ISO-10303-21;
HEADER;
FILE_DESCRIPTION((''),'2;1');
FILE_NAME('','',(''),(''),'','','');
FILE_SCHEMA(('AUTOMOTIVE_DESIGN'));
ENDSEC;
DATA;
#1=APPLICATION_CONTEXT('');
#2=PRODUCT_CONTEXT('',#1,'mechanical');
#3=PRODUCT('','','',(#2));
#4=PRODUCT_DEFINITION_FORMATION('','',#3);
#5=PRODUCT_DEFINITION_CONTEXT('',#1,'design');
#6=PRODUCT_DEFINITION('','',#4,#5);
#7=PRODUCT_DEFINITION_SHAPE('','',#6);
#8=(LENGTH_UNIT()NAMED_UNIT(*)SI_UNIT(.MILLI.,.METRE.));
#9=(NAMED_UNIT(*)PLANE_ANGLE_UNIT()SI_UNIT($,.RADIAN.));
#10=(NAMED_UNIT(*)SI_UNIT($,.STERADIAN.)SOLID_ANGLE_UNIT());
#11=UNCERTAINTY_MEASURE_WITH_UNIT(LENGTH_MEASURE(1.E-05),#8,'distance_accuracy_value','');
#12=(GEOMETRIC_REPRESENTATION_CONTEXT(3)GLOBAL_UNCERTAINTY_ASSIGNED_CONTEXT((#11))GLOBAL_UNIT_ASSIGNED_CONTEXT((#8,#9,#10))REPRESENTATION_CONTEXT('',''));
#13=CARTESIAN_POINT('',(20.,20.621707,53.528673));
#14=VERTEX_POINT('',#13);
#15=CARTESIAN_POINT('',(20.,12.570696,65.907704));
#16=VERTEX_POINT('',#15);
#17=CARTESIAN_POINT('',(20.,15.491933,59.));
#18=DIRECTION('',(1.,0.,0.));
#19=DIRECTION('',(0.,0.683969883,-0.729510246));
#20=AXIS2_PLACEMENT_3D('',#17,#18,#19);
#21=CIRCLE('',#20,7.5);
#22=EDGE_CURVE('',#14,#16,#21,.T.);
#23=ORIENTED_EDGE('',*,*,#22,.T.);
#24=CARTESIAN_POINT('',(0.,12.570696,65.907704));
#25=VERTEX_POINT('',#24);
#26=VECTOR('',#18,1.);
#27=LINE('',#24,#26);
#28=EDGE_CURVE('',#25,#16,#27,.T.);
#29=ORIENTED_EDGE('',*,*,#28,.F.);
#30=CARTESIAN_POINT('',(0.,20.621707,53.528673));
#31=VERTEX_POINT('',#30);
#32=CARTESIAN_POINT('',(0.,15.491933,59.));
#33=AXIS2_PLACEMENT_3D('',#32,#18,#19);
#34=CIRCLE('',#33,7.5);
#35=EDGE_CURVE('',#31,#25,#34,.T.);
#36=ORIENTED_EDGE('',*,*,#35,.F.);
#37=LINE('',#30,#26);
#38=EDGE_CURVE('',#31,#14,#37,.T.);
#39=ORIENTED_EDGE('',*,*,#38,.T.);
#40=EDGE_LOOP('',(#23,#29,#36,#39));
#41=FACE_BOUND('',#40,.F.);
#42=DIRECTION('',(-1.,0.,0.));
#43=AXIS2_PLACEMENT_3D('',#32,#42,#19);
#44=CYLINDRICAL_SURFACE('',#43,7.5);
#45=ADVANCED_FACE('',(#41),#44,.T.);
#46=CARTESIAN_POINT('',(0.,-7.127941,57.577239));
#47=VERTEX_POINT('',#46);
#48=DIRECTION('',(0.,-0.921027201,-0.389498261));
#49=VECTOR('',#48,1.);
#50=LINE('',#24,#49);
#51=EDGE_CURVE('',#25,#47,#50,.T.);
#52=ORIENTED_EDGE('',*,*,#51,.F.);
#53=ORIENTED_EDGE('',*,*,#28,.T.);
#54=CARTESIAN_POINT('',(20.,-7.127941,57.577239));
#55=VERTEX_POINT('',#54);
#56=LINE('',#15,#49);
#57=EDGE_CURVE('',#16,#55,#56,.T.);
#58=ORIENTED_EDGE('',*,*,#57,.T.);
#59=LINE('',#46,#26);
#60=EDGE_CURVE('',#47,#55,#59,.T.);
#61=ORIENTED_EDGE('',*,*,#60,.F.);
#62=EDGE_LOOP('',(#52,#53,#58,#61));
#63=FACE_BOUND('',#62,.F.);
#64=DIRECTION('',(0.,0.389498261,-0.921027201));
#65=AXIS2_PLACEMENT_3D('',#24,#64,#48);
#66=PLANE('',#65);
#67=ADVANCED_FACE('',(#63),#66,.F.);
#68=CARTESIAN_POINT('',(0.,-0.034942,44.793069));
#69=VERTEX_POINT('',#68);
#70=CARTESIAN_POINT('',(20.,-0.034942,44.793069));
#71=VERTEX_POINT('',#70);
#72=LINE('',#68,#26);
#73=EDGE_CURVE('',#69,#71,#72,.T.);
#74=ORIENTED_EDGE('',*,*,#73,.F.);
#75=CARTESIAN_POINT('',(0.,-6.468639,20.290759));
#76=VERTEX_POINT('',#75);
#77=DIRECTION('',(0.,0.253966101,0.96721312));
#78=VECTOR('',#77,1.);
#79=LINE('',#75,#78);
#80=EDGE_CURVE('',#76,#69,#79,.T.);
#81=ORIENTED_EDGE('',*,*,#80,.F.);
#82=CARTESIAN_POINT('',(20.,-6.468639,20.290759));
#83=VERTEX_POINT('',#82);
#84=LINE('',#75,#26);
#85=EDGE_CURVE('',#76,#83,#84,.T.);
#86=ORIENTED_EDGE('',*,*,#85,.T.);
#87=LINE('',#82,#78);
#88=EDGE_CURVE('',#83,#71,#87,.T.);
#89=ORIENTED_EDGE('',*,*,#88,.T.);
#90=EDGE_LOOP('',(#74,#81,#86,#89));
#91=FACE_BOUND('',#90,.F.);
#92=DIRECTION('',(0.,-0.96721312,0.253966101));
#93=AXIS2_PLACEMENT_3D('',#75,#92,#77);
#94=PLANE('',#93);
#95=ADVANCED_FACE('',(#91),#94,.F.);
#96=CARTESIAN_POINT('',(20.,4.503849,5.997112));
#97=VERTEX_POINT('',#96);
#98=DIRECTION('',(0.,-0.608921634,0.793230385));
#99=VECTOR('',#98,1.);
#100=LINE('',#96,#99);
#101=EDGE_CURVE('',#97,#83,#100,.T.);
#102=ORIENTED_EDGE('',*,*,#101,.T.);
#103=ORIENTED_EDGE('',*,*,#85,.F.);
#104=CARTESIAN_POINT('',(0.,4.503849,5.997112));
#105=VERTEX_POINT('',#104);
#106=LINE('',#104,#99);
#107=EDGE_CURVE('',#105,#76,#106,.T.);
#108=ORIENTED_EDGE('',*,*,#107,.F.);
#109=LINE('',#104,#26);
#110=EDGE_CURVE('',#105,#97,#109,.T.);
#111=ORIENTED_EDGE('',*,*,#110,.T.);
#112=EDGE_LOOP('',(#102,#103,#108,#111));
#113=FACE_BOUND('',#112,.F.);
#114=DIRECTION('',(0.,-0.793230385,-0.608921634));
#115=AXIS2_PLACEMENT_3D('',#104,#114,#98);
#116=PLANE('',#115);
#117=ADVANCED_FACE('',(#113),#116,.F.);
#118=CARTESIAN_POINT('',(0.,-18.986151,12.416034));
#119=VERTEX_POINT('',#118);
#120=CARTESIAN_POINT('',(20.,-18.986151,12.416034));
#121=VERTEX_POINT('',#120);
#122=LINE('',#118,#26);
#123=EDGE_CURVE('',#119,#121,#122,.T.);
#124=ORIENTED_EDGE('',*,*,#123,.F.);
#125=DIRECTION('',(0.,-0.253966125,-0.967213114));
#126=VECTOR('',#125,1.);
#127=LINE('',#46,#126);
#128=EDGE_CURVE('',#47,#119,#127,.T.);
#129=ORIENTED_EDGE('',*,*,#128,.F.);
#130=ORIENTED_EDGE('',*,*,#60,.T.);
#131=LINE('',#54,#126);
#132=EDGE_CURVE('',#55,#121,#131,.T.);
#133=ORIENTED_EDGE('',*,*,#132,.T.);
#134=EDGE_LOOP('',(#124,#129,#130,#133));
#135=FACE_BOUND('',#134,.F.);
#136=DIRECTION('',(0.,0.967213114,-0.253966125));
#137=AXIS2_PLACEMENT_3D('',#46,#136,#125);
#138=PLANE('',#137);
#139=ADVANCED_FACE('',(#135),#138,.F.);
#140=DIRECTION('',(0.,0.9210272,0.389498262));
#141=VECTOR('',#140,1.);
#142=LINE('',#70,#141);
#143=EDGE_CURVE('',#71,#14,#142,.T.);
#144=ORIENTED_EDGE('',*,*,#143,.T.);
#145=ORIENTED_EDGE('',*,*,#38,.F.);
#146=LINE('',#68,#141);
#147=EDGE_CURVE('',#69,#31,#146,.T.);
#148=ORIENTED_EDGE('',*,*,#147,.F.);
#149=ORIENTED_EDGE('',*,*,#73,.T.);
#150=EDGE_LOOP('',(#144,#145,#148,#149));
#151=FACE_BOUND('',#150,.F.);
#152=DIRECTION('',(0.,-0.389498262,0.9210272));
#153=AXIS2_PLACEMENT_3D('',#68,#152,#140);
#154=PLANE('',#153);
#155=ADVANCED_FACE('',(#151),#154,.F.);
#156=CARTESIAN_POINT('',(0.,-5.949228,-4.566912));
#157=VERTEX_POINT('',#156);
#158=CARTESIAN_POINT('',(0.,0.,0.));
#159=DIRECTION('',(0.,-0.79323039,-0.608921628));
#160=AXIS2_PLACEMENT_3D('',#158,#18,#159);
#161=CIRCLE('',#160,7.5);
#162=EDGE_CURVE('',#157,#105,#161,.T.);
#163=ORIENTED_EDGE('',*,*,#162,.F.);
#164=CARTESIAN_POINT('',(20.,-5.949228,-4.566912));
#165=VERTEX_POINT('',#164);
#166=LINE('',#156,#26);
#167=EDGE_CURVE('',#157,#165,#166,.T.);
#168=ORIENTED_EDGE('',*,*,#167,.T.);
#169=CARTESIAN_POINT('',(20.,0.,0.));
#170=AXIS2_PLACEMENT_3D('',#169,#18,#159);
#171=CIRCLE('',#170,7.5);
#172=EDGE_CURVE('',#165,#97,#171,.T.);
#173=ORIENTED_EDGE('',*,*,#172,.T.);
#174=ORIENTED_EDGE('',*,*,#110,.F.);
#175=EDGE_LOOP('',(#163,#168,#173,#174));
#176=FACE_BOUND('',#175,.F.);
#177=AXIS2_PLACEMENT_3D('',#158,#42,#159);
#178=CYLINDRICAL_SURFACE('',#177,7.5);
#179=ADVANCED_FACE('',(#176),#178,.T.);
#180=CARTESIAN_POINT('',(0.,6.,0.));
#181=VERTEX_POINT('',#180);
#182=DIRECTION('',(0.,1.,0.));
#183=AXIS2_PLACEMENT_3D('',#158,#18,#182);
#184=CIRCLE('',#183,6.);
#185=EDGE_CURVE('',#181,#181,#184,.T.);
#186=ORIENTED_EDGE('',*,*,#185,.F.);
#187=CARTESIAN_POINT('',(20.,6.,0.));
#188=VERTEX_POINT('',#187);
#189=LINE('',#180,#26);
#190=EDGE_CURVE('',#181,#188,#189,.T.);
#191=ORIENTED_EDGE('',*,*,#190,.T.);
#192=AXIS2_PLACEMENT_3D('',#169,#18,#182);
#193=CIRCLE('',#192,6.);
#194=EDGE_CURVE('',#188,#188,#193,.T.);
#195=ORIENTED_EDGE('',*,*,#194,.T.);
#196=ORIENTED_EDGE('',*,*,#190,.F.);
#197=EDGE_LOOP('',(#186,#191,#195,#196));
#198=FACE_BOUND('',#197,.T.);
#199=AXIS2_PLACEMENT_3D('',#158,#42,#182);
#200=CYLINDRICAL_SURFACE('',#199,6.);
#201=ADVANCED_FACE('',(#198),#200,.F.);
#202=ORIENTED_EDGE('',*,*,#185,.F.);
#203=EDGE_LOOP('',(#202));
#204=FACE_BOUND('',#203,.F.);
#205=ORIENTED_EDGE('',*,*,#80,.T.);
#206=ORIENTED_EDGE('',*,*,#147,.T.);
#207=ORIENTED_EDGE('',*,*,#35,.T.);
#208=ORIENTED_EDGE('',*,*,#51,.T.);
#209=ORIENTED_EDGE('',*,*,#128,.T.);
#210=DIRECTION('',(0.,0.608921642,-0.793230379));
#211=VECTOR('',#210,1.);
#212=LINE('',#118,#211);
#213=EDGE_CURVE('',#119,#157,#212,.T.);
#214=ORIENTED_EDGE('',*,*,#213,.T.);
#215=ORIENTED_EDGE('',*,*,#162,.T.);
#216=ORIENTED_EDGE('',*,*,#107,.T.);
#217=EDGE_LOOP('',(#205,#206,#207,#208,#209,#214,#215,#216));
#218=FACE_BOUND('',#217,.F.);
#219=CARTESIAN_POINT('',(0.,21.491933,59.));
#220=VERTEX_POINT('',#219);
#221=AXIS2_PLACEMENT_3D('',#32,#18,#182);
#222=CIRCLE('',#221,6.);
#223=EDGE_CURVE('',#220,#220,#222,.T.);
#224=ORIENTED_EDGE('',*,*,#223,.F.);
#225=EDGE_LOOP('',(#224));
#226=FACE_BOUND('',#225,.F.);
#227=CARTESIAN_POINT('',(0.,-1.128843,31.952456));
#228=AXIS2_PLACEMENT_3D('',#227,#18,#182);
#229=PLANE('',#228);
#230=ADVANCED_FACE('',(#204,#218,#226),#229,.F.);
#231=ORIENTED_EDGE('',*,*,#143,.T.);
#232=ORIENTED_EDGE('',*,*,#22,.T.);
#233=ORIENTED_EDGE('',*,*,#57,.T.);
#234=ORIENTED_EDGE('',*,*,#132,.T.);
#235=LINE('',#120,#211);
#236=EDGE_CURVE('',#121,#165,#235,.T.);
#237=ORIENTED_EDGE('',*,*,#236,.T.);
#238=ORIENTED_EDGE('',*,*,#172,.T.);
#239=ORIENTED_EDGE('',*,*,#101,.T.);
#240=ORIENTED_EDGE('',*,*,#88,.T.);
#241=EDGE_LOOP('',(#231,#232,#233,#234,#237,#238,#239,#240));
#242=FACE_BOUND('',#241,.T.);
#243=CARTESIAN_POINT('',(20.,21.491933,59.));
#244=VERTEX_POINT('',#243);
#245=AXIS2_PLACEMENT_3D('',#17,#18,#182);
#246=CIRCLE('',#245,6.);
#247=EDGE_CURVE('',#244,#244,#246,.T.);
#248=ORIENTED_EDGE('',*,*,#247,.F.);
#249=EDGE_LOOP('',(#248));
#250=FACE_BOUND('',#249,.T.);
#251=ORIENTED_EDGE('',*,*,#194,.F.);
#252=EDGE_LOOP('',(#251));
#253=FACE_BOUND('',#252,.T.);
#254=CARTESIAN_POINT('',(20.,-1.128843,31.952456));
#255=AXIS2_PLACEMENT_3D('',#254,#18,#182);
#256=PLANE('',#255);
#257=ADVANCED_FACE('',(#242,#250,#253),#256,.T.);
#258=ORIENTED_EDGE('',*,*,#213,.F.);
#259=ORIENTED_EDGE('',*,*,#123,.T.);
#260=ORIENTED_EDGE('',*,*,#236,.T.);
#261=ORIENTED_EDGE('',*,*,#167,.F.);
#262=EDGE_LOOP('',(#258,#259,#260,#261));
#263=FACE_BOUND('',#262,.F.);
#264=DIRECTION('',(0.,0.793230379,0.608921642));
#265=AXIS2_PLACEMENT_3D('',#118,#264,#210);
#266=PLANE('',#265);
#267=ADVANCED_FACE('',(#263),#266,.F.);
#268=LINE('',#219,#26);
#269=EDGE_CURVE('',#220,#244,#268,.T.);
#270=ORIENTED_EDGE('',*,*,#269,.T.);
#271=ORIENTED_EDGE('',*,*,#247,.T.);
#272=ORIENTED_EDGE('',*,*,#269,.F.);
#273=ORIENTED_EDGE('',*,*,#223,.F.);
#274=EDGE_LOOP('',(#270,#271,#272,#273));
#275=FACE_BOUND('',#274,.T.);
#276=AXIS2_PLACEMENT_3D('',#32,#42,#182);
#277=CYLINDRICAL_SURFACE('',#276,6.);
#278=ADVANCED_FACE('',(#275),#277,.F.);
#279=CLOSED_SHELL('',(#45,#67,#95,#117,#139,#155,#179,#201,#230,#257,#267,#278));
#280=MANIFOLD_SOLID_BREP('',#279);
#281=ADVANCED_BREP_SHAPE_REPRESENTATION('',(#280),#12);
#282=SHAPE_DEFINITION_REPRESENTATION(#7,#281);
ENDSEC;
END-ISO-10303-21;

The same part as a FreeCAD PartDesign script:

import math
import FreeCAD as App
import Part
import Sketcher

V = App.Vector

doc = App.newDocument("Part")
body = doc.addObject("PartDesign::Body", "Body")

sketch1 = body.newObject("Sketcher::SketchObject", "Sketch")
sketch1.AttachmentSupport = (doc.getObject("YZ_Plane"), [""])
sketch1.MapMode = "FlatFace"
sketch1.addGeometry([
    Part.ArcOfCircle(Part.Circle(V(15, 59, 0), V(0, 0, 1), 8), math.radians(-47), math.radians(113)),
    Part.LineSegment(V(13, 66, 0), V(-7, 58, 0)),
    Part.LineSegment(V(-7, 58, 0), V(-19, 12, 0)),
    Part.LineSegment(V(-19, 12, 0), V(-6, -5, 0)),
    Part.ArcOfCircle(Part.Circle(V(0, 0, 0), V(0, 0, 1), 8), math.radians(-142), math.radians(53)),
    Part.LineSegment(V(5, 6, 0), V(-6, 20, 0)),
    Part.LineSegment(V(-6, 20, 0), V(0, 45, 0)),
    Part.LineSegment(V(0, 45, 0), V(21, 54, 0)),
    Part.Circle(V(0, 0, 0), V(0, 0, 1), 6),
    Part.Circle(V(15, 59, 0), V(0, 0, 1), 6),
], False)
sketch1.addConstraint([
    Sketcher.Constraint("Tangent", 0, 2, 1, 1),
    Sketcher.Constraint("Coincident", 1, 2, 2, 1),
    Sketcher.Constraint("Coincident", 2, 2, 3, 1),
    Sketcher.Constraint("Tangent", 3, 2, 4, 1),
    Sketcher.Constraint("Coincident", 4, 2, 5, 1),
    Sketcher.Constraint("Coincident", 5, 2, 6, 1),
    Sketcher.Constraint("Coincident", 6, 2, 7, 1),
    Sketcher.Constraint("Coincident", 7, 2, 0, 1),
    Sketcher.Constraint("Coincident", 4, 3, -1, 1),
    Sketcher.Constraint("Coincident", 8, 3, -1, 1),
    Sketcher.Constraint("Coincident", 9, 3, 0, 3),
    Sketcher.Constraint("Equal", 0, 4),
    Sketcher.Constraint("Equal", 8, 9),
    Sketcher.Constraint("Parallel", 3, 5),
    Sketcher.Constraint("Parallel", 2, 6),
    Sketcher.Constraint("Parallel", 1, 7),
    Sketcher.Constraint("Diameter", 8, 12.0),
    Sketcher.Constraint("Radius", 0, 7.5),
    Sketcher.Constraint("DistanceY", -1, 1, 0, 3, 59.0),
    Sketcher.Constraint("DistanceX", 2, 2, 4, 2, 23.49),
    Sketcher.Constraint("DistanceX", 1, 2, 6, 2, 7.092999),
    Sketcher.Constraint("Distance", 5, 18.01954),
    Sketcher.Constraint("Distance", 7, 22.427838),
    Sketcher.Constraint("DistanceX", 1, 2, -1, 1, 7.127941),
    Sketcher.Constraint("DistanceY", -1, 1, 1, 2, 57.577239),
    Sketcher.Constraint("DistanceX", 2, 2, -1, 1, 18.986151),
    Sketcher.Constraint("DistanceX", 5, 2, -1, 1, 6.468639),
])
pad1 = body.newObject("PartDesign::Pad", "Pad")
pad1.Profile = sketch1
pad1.Length = 20

doc.recompute()
